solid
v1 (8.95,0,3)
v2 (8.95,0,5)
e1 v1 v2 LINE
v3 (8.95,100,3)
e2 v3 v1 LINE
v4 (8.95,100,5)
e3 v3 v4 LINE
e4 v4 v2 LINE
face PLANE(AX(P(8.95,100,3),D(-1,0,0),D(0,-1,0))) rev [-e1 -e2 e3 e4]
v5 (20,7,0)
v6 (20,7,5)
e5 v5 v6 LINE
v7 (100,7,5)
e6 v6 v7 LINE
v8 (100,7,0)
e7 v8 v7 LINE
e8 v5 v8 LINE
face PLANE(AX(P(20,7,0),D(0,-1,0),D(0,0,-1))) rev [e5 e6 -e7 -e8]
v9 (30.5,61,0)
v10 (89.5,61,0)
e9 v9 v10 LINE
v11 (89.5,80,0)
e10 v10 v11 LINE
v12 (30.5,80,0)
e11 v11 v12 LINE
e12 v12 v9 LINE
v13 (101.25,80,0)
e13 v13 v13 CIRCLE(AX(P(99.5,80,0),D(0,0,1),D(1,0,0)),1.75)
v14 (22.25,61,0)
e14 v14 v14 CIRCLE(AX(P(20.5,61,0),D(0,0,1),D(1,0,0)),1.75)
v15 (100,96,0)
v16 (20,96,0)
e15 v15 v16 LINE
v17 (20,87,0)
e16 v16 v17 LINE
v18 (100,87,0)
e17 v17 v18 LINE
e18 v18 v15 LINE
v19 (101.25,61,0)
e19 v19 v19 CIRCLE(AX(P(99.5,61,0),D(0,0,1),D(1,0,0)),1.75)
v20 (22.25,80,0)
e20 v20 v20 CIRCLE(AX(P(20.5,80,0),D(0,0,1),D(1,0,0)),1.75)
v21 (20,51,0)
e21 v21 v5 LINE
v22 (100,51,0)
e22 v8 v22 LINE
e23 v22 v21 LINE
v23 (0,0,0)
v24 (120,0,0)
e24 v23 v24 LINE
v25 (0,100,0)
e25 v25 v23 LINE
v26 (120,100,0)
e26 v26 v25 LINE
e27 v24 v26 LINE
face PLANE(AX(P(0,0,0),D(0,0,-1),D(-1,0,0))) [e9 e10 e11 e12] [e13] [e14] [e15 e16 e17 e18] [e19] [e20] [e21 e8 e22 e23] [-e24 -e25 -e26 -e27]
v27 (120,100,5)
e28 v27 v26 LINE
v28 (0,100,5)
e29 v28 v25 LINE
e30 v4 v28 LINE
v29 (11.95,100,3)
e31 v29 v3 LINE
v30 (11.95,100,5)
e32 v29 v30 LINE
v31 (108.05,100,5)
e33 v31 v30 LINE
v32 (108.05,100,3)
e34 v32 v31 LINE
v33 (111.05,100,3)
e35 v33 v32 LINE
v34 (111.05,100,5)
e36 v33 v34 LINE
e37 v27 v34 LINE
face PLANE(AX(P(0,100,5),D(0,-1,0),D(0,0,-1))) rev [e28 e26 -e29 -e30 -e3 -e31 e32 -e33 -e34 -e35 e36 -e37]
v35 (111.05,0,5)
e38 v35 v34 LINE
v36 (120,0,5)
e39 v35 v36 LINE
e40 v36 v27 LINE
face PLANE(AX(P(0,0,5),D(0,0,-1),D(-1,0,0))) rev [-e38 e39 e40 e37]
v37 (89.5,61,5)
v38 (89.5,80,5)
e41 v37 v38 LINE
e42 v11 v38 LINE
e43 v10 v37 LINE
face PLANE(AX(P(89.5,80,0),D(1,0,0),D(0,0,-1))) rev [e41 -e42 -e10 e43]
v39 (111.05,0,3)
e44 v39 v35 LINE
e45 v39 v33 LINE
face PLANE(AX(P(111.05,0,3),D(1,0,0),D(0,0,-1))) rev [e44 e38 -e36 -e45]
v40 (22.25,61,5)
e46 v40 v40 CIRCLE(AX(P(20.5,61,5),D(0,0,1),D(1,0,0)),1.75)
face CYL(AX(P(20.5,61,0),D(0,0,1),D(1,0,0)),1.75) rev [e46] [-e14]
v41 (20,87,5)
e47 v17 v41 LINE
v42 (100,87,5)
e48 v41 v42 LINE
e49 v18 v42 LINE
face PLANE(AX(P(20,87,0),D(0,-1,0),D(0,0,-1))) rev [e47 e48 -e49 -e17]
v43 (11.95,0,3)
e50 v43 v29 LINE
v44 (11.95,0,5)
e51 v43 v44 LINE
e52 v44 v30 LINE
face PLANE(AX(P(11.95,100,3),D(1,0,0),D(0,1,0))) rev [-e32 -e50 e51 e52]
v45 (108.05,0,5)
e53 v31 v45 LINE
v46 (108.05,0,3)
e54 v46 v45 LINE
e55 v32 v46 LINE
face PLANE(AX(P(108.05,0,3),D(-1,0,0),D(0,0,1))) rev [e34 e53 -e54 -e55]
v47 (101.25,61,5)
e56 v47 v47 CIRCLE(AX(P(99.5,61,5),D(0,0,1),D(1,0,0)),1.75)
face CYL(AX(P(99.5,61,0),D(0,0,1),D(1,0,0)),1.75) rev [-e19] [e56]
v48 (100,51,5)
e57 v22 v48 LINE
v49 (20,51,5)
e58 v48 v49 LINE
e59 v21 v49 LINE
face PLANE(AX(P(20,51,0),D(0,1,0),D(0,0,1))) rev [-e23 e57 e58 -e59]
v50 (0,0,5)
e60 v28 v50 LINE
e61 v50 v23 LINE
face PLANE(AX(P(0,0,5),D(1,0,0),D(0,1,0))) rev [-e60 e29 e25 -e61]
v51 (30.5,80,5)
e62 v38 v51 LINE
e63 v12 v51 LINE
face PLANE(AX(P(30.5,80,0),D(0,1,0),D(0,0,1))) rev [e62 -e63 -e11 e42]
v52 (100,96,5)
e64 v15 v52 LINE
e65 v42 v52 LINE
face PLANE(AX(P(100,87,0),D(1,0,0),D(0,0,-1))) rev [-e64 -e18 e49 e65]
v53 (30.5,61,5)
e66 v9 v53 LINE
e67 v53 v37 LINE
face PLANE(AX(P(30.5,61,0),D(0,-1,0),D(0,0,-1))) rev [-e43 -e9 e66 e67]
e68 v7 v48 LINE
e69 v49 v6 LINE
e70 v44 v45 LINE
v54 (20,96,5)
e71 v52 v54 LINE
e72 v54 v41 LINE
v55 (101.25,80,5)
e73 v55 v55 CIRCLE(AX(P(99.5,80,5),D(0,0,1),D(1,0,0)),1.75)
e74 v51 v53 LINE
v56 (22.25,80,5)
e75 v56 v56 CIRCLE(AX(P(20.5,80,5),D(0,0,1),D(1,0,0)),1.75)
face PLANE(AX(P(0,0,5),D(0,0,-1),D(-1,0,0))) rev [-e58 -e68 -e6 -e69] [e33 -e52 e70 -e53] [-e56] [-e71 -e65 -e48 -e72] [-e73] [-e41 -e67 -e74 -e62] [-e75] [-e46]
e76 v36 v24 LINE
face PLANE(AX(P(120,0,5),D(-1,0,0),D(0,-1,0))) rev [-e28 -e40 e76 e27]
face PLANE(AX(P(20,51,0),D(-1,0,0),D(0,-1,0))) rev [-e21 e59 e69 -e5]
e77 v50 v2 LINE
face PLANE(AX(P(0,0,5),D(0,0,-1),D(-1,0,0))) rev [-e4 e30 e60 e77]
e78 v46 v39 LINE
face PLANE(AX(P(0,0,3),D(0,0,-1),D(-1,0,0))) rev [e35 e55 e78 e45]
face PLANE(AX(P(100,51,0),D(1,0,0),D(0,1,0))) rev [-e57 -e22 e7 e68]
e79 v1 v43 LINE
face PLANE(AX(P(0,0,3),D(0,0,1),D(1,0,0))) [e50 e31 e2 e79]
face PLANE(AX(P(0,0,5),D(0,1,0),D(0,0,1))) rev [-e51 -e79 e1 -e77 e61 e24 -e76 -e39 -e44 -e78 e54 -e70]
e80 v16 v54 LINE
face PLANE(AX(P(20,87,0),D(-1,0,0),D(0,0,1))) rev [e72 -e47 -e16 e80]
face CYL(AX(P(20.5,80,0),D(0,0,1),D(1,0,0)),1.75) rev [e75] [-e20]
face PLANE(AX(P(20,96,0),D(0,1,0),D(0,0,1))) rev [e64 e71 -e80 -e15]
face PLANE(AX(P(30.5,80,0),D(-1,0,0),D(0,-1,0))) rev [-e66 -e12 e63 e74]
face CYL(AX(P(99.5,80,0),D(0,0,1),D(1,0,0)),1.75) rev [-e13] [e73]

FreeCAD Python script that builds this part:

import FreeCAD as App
import Part
import Sketcher
from FreeCAD import Vector
Q = App.Units.Quantity


def add_polygon(sketch, points):
    """Adds a closed chain of lines whose ends are joined by coincident constraints."""
    first, n = sketch.GeometryCount, len(points)
    for a, b in zip(points, points[1:] + points[:1]):
        sketch.addGeometry(Part.LineSegment(App.Vector(*a, 0), App.Vector(*b, 0)), False)
    for i in range(n):
        sketch.addConstraint(Sketcher.Constraint("Coincident", first + i, 2, first + (i + 1) % n, 1))

doc = App.newDocument("Part")
body = doc.addObject("PartDesign::Body", "Body")

# Sketch on XY plane
sketch1 = body.newObject("Sketcher::SketchObject", "Sketch")
sketch1.AttachmentSupport = (doc.getObject("XY_Plane"), [""])
sketch1.MapMode = "FlatFace"
add_polygon(sketch1, [(0, 100), (0, 0), (120, 0), (120, 100)])  # lines 0-3
sketch1.addConstraint([
    Sketcher.Constraint("Vertical", 0),
    Sketcher.Constraint("Horizontal", 1),
    Sketcher.Constraint("Vertical", 2),
    Sketcher.Constraint("Horizontal", 3),
    Sketcher.Constraint("Coincident", 0, 2, -1, 1),
    Sketcher.Constraint("DistanceX", 1, 1, 1, 2, Q("120 mm")),
    Sketcher.Constraint("DistanceY", 0, 2, 0, 1, Q("100 mm")),
])
pad1 = body.newObject("PartDesign::Pad", "Pad")
pad1.Profile = sketch1
pad1.Length = 5

# Sketch on XY plane
sketch2 = body.newObject("Sketcher::SketchObject", "Sketch001")
sketch2.AttachmentSupport = (doc.getObject("XY_Plane"), [""])
sketch2.MapMode = "FlatFace"
sketch2.AttachmentOffset = App.Placement(Vector(0, 0, 5), App.Rotation())
add_polygon(sketch2, [(8.9, 100), (8.9, 0), (11.9, 0), (11.9, 100)])  # lines 0-3
add_polygon(sketch2, [(108, 100), (108, 0), (111, 0), (111, 100)])  # lines 4-7
sketch2.addConstraint([
    Sketcher.Constraint("Vertical", 0),
    Sketcher.Constraint("Horizontal", 1),
    Sketcher.Constraint("Vertical", 2),
    Sketcher.Constraint("Horizontal", 3),
    Sketcher.Constraint("Vertical", 4),
    Sketcher.Constraint("Horizontal", 5),
    Sketcher.Constraint("Vertical", 6),
    Sketcher.Constraint("Horizontal", 7),
    Sketcher.Constraint("PointOnObject", 0, 2, -1),
    Sketcher.Constraint("PointOnObject", 4, 2, -1),
    Sketcher.Constraint("Horizontal", 3, 2, 6, 2),
    Sketcher.Constraint("Equal", 3, 5),
    Sketcher.Constraint("DistanceX", 1, 1, 1, 2, Q("3 mm")),
    Sketcher.Constraint("DistanceY", 0, 2, 0, 1, Q("100 mm")),
    Sketcher.Constraint("DistanceX", 1, 2, 4, 2, Q("96.1 mm")),
    Sketcher.Constraint("DistanceX", -1, 1, 0, 2, Q("8.95 mm")),
])
pocket1 = body.newObject("PartDesign::Pocket", "Pocket")
pocket1.Profile = sketch2
pocket1.Length = 2

# Sketch on XY plane
sketch3 = body.newObject("Sketcher::SketchObject", "Sketch002")
sketch3.AttachmentSupport = (doc.getObject("XY_Plane"), [""])
sketch3.MapMode = "FlatFace"
sketch3.AttachmentOffset = App.Placement(Vector(0, 0, 5), App.Rotation())
sketch3.addGeometry(Part.Circle(Vector(20.5, 80, 0), Vector(0, 0, 1), 1.8), False)  # 0
sketch3.addGeometry(Part.Circle(Vector(20.5, 61, 0), Vector(0, 0, 1), 1.8), False)  # 1
sketch3.addGeometry(Part.Circle(Vector(99.5, 80, 0), Vector(0, 0, 1), 1.8), False)  # 2
sketch3.addGeometry(Part.Circle(Vector(99.5, 61, 0), Vector(0, 0, 1), 1.8), False)  # 3
add_polygon(sketch3, [(20, 51), (20, 7), (100, 7), (100, 51)])  # lines 4-7
add_polygon(sketch3, [(20, 96), (20, 87), (100, 87), (100, 96)])  # lines 8-11
add_polygon(sketch3, [(30.5, 80), (30.5, 61), (89.5, 61), (89.5, 80)])  # lines 12-15
sketch3.addConstraint([
    Sketcher.Constraint("Vertical", 4),
    Sketcher.Constraint("Horizontal", 5),
    Sketcher.Constraint("Vertical", 6),
    Sketcher.Constraint("Horizontal", 7),
    Sketcher.Constraint("Vertical", 8),
    Sketcher.Constraint("Horizontal", 9),
    Sketcher.Constraint("Vertical", 10),
    Sketcher.Constraint("Horizontal", 11),
    Sketcher.Constraint("Vertical", 12),
    Sketcher.Constraint("Horizontal", 13),
    Sketcher.Constraint("Vertical", 14),
    Sketcher.Constraint("Horizontal", 15),
    Sketcher.Constraint("Equal", 0, 1),
    Sketcher.Constraint("Equal", 1, 2),
    Sketcher.Constraint("Equal", 2, 3),
    Sketcher.Constraint("Horizontal", 0, 3, 2, 3),
    Sketcher.Constraint("Horizontal", 1, 3, 3, 3),
    Sketcher.Constraint("Horizontal", 3, 3, 12, 2),
    Sketcher.Constraint("Horizontal", 2, 3, 14, 2),
    Sketcher.Constraint("Vertical", 0, 3, 1, 3),
    Sketcher.Constraint("Vertical", 2, 3, 3, 3),
    Sketcher.Constraint("Vertical", 7, 2, 8, 2),
    Sketcher.Constraint("Vertical", 6, 2, 9, 2),
    Sketcher.Constraint("Diameter", 0, Q("3.5 mm")),
    Sketcher.Constraint("DistanceX", 5, 1, 5, 2, Q("80 mm")),
    Sketcher.Constraint("DistanceX", 13, 1, 13, 2, Q("59 mm")),
    Sketcher.Constraint("DistanceY", 4, 2, 4, 1, Q("44 mm")),
    Sketcher.Constraint("DistanceY", 8, 2, 8, 1, Q("9 mm")),
    Sketcher.Constraint("DistanceY", 12, 2, 12, 1, Q("19 mm")),
    Sketcher.Constraint("DistanceY", -1, 1, 0, 3, Q("80 mm")),
    Sketcher.Constraint("DistanceX", -1, 1, 4, 2, Q("20 mm")),
    Sketcher.Constraint("DistanceY", -1, 1, 4, 2, Q("7 mm")),
    Sketcher.Constraint("DistanceY", -1, 1, 8, 2, Q("87 mm")),
    Sketcher.Constraint("DistanceX", 0, 3, 2, 3, Q("79 mm")),
    Sketcher.Constraint("DistanceX", 1, 3, 12, 2, Q("10 mm")),
    Sketcher.Constraint("DistanceX", -1, 1, 0, 3, Q("20.5 mm")),
])
pocket2 = body.newObject("PartDesign::Pocket", "Pocket001")
pocket2.Profile = sketch3
pocket2.Type = "ThroughAll"

doc.recompute()
